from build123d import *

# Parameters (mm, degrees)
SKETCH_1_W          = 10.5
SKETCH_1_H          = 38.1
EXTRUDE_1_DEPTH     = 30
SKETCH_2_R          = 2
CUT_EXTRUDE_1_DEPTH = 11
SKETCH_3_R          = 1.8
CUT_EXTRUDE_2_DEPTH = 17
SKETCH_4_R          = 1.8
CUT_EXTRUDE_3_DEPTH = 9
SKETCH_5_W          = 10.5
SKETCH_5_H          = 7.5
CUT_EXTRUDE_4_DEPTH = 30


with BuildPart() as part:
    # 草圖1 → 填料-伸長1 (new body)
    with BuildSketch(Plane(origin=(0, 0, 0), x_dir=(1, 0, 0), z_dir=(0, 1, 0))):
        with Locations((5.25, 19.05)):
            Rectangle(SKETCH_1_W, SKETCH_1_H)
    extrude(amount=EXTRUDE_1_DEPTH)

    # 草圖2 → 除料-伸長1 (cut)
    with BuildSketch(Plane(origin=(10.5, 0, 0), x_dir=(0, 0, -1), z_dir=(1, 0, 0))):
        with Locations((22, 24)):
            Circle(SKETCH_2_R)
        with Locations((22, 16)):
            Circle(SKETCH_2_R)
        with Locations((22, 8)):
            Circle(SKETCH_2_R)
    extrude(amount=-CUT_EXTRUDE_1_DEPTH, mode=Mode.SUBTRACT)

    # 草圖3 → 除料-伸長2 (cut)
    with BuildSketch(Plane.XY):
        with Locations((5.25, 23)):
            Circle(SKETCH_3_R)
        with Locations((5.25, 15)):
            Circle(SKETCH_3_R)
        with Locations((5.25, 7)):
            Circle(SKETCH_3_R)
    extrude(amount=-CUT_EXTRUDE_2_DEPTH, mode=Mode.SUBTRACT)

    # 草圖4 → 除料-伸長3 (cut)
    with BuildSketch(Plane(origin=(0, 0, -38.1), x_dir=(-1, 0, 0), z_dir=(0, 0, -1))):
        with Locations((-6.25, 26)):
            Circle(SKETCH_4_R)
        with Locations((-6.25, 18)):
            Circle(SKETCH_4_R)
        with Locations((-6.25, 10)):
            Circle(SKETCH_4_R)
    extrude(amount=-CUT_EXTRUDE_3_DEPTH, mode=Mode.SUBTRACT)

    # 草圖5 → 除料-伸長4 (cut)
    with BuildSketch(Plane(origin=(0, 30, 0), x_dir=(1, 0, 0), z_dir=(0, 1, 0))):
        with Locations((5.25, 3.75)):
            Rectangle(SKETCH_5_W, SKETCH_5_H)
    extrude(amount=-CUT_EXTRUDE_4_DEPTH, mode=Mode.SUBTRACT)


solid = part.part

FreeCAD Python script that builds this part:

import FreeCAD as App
import Part
import Sketcher

V = App.Vector
Q = App.Units.Quantity


def add_polygon(sketch, points):
    """Adds a closed chain of lines whose ends are joined by coincident constraints."""
    first, n = sketch.GeometryCount, len(points)
    for a, b in zip(points, points[1:] + points[:1]):
        sketch.addGeometry(Part.LineSegment(App.Vector(*a, 0), App.Vector(*b, 0)), False)
    for i in range(n):
        sketch.addConstraint(Sketcher.Constraint("Coincident", first + i, 2, first + (i + 1) % n, 1))

doc = App.newDocument("Part")
body = doc.addObject("PartDesign::Body", "Body")

sketch1 = body.newObject("Sketcher::SketchObject", "Sketch")
sketch1.AttachmentSupport = (doc.getObject("XZ_Plane"), [""])
sketch1.MapMode = "FlatFace"
add_polygon(sketch1, [(0, -38), (0, 0), (10, 0), (10, -38)])
sketch1.addConstraint([
    Sketcher.Constraint("Vertical", 0),
    Sketcher.Constraint("Horizontal", 1),
    Sketcher.Constraint("Vertical", 2),
    Sketcher.Constraint("Horizontal", 3),
    Sketcher.Constraint("Coincident", 0, 2, -1, 1),
    Sketcher.Constraint("DistanceX", 1, 1, 1, 2, Q("10.5 mm")),
    Sketcher.Constraint("DistanceY", 0, 1, 0, 2, Q("38.1 mm")),
])
pad1 = body.newObject("PartDesign::Pad", "Pad")
pad1.Profile = sketch1
pad1.Length = 30
pad1.Reversed = True

sketch2 = body.newObject("Sketcher::SketchObject", "Sketch001")
sketch2.AttachmentSupport = (doc.getObject("YZ_Plane"), [""])
sketch2.MapMode = "FlatFace"
sketch2.AttachmentOffset = App.Placement(V(0, 0, 10.5), App.Rotation())
sketch2.addGeometry([
    Part.Circle(V(24, -22, 0), V(0, 0, 1), 2),
    Part.Circle(V(16, -22, 0), V(0, 0, 1), 2),
    Part.Circle(V(8, -22, 0), V(0, 0, 1), 2),
], False)
sketch2.addConstraint([
    Sketcher.Constraint("Equal", 0, 1),
    Sketcher.Constraint("Equal", 1, 2),
    Sketcher.Constraint("Horizontal", 0, 3, 1, 3),
    Sketcher.Constraint("Horizontal", 1, 3, 2, 3),
    Sketcher.Constraint("Diameter", 0, Q("4 mm")),
    Sketcher.Constraint("DistanceX", -1, 1, 0, 3, Q("24 mm")),
    Sketcher.Constraint("DistanceY", 0, 3, -1, 1, Q("22 mm")),
    Sketcher.Constraint("DistanceX", -1, 1, 1, 3, Q("16 mm")),
    Sketcher.Constraint("DistanceX", -1, 1, 2, 3, Q("8 mm")),
])
pocket1 = body.newObject("PartDesign::Pocket", "Pocket")
pocket1.Profile = sketch2
pocket1.Length = 11

sketch3 = body.newObject("Sketcher::SketchObject", "Sketch002")
sketch3.AttachmentSupport = (doc.getObject("XY_Plane"), [""])
sketch3.MapMode = "FlatFace"
sketch3.addGeometry([
    Part.Circle(V(5.2, 23, 0), V(0, 0, 1), 1.8),
    Part.Circle(V(5.2, 15, 0), V(0, 0, 1), 1.8),
    Part.Circle(V(5.2, 7, 0), V(0, 0, 1), 1.8),
], False)
sketch3.addConstraint([
    Sketcher.Constraint("Equal", 0, 1),
    Sketcher.Constraint("Equal", 1, 2),
    Sketcher.Constraint("Vertical", 0, 3, 1, 3),
    Sketcher.Constraint("Vertical", 1, 3, 2, 3),
    Sketcher.Constraint("Diameter", 0, Q("3.6 mm")),
    Sketcher.Constraint("DistanceY", -1, 1, 0, 3, Q("23 mm")),
    Sketcher.Constraint("DistanceY", -1, 1, 1, 3, Q("15 mm")),
    Sketcher.Constraint("DistanceY", -1, 1, 2, 3, Q("7 mm")),
    Sketcher.Constraint("DistanceX", -1, 1, 0, 3, Q("5.25 mm")),
])
pocket2 = body.newObject("PartDesign::Pocket", "Pocket001")
pocket2.Profile = sketch3
pocket2.Length = 17

sketch4 = body.newObject("Sketcher::SketchObject", "Sketch003")
sketch4.AttachmentSupport = (doc.getObject("XY_Plane"), [""])
sketch4.MapMode = "FlatFace"
sketch4.AttachmentOffset = App.Placement(V(0, 0, -38.1), App.Rotation())
sketch4.addGeometry([
    Part.Circle(V(6.2, 26, 0), V(0, 0, 1), 1.8),
    Part.Circle(V(6.2, 18, 0), V(0, 0, 1), 1.8),
    Part.Circle(V(6.2, 10, 0), V(0, 0, 1), 1.8),
], False)
sketch4.addConstraint([
    Sketcher.Constraint("Equal", 0, 1),
    Sketcher.Constraint("Equal", 1, 2),
    Sketcher.Constraint("Vertical", 0, 3, 1, 3),
    Sketcher.Constraint("Vertical", 1, 3, 2, 3),
    Sketcher.Constraint("Diameter", 0, Q("3.6 mm")),
    Sketcher.Constraint("DistanceY", -1, 1, 0, 3, Q("26 mm")),
    Sketcher.Constraint("DistanceY", -1, 1, 1, 3, Q("18 mm")),
    Sketcher.Constraint("DistanceY", -1, 1, 2, 3, Q("10 mm")),
    Sketcher.Constraint("DistanceX", -1, 1, 0, 3, Q("6.25 mm")),
])
pocket3 = body.newObject("PartDesign::Pocket", "Pocket002")
pocket3.Profile = sketch4
pocket3.Length = 9
pocket3.Reversed = True

sketch5 = body.newObject("Sketcher::SketchObject", "Sketch004")
sketch5.AttachmentSupport = (doc.getObject("XZ_Plane"), [""])
sketch5.MapMode = "FlatFace"
sketch5.AttachmentOffset = App.Placement(V(0, 0, -30), App.Rotation())
add_polygon(sketch5, [(0, -8), (0, 0), (10, 0), (10, -8)])
sketch5.addConstraint([
    Sketcher.Constraint("Vertical", 0),
    Sketcher.Constraint("Horizontal", 1),
    Sketcher.Constraint("Vertical", 2),
    Sketcher.Constraint("Horizontal", 3),
    Sketcher.Constraint("Coincident", 0, 2, -1, 1),
    Sketcher.Constraint("DistanceX", 1, 1, 1, 2, Q("10.5 mm")),
    Sketcher.Constraint("DistanceY", 0, 1, 0, 2, Q("7.5 mm")),
])
pocket4 = body.newObject("PartDesign::Pocket", "Pocket003")
pocket4.Profile = sketch5
pocket4.Length = 30
pocket4.Reversed = True

doc.recompute()
